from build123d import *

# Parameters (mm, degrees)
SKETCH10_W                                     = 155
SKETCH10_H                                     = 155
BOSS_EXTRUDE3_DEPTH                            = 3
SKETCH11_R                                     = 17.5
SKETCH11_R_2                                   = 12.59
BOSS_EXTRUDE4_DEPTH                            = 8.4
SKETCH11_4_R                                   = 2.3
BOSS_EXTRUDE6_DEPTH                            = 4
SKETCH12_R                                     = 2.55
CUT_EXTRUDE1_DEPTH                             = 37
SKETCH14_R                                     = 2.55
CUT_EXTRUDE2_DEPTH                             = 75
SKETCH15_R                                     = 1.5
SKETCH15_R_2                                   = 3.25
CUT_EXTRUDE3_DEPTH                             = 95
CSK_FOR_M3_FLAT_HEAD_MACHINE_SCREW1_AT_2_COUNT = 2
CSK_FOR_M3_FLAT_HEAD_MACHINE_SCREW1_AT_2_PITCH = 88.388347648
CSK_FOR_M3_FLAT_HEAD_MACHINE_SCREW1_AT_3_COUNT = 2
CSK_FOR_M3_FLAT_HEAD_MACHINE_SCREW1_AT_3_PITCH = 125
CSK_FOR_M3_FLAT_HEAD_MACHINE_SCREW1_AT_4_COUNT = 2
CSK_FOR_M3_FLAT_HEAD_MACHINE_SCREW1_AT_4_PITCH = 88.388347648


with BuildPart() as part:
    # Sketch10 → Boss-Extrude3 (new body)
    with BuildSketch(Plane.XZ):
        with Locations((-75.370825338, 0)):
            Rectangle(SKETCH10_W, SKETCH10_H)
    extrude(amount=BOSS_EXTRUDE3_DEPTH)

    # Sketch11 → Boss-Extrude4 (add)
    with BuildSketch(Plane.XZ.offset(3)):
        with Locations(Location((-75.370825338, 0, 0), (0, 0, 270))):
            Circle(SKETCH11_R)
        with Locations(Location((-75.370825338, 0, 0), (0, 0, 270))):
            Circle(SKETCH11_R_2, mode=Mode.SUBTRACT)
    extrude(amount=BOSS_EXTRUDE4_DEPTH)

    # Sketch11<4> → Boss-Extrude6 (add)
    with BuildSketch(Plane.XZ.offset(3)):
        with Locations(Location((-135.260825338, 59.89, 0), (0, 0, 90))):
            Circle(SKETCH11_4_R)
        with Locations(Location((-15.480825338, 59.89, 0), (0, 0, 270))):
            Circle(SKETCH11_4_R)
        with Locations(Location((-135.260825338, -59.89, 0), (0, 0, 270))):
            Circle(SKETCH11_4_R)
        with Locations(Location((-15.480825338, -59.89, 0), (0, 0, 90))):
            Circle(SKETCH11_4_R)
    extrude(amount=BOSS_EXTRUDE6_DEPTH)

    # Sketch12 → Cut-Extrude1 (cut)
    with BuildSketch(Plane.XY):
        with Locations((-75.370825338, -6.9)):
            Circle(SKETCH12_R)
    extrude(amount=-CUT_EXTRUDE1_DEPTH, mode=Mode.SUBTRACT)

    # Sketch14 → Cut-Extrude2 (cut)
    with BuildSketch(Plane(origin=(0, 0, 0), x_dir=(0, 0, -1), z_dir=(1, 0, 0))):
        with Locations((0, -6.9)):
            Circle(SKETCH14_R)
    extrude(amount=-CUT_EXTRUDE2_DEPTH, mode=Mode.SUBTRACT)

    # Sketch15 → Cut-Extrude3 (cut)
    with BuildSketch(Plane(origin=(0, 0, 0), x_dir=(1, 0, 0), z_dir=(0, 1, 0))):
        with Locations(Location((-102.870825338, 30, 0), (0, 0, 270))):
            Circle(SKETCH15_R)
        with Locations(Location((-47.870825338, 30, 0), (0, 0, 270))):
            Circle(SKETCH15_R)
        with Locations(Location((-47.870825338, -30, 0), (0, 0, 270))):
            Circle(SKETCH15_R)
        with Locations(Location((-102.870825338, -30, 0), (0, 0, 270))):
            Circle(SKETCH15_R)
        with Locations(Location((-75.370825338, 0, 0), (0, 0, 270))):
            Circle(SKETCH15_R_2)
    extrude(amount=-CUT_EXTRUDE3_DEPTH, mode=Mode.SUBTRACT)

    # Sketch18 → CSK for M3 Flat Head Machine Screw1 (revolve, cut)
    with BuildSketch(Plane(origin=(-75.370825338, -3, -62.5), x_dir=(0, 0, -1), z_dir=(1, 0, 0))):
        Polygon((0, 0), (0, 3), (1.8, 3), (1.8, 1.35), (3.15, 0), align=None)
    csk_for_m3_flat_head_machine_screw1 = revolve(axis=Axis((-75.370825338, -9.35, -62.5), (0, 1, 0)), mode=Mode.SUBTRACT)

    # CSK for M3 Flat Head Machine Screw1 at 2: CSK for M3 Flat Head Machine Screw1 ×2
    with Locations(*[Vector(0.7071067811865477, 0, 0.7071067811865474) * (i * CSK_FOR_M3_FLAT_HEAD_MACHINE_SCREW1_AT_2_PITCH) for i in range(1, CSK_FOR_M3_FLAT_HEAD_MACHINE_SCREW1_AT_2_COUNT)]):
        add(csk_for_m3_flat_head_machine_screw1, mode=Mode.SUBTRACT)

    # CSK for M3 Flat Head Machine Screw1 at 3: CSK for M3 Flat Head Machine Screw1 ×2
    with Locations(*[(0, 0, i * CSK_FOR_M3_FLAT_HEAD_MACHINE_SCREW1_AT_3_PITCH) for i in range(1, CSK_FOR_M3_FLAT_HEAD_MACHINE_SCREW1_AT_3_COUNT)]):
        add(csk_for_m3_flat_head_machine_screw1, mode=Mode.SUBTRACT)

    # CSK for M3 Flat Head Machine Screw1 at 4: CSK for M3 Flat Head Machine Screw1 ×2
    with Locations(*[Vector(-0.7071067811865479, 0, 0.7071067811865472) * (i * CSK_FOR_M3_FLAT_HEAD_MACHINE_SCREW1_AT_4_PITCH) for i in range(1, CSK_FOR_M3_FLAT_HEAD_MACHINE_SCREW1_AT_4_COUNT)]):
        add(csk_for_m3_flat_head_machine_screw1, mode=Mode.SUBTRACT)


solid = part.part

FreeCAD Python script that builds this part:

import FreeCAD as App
import Part
import Sketcher
Q = App.Units.Quantity


def add_polygon(sketch, points):
    """Adds a closed chain of lines whose ends are joined by coincident constraints."""
    first, n = sketch.GeometryCount, len(points)
    for a, b in zip(points, points[1:] + points[:1]):
        sketch.addGeometry(Part.LineSegment(App.Vector(*a, 0), App.Vector(*b, 0)), False)
    for i in range(n):
        sketch.addConstraint(Sketcher.Constraint("Coincident", first + i, 2, first + (i + 1) % n, 1))

doc = App.newDocument("Part")
body = doc.addObject("PartDesign::Body", "Body")

# Sketch on XZ plane
sketch1 = body.newObject("Sketcher::SketchObject", "Sketch")
sketch1.AttachmentSupport = (doc.getObject("XZ_Plane"), [""])
sketch1.MapMode = "FlatFace"
add_polygon(sketch1, [(-153, 78), (-153, -78), (2, -78), (2, 78)])  # lines 0-3
sketch1.addConstraint([
    Sketcher.Constraint("Vertical", 0),
    Sketcher.Constraint("Horizontal", 1),
    Sketcher.Constraint("Vertical", 2),
    Sketcher.Constraint("Horizontal", 3),
    Sketcher.Constraint("Equal", 3, 0),
    Sketcher.Constraint("DistanceX", 1, 1, 1, 2, Q("155 mm")),
    Sketcher.Constraint("DistanceY", 0, 2, -1, 1, Q("77.5 mm")),
    Sketcher.Constraint("DistanceX", 0, 2, -1, 1, Q("152.870825 mm")),
])
pad1 = body.newObject("PartDesign::Pad", "Pad")
pad1.Profile = sketch1
pad1.Length = 3

# Sketch on XZ plane
sketch2 = body.newObject("Sketcher::SketchObject", "Sketch001")
sketch2.AttachmentSupport = (doc.getObject("XZ_Plane"), [""])
sketch2.MapMode = "FlatFace"
sketch2.AttachmentOffset = App.Placement(App.Vector(0, 0, 3), App.Rotation())
sketch2.addGeometry([
    Part.Circle(App.Vector(-75, 0, 0), App.Vector(0, 0, 1), 18),
    Part.Circle(App.Vector(-75, 0, 0), App.Vector(0, 0, 1), 13),
], False)
sketch2.addConstraint([
    Sketcher.Constraint("Coincident", 1, 3, 0, 3),
    Sketcher.Constraint("PointOnObject", 0, 3, -1),
    Sketcher.Constraint("Diameter", 0, Q("35 mm")),
    Sketcher.Constraint("Diameter", 1, Q("25.18 mm")),
    Sketcher.Constraint("DistanceX", 0, 3, -1, 1, Q("75.370825 mm")),
])
pad2 = body.newObject("PartDesign::Pad", "Pad001")
pad2.Profile = sketch2
pad2.Length = 8.4

# Sketch on XZ plane
sketch3 = body.newObject("Sketcher::SketchObject", "Sketch002")
sketch3.AttachmentSupport = (doc.getObject("XZ_Plane"), [""])
sketch3.MapMode = "FlatFace"
sketch3.AttachmentOffset = App.Placement(App.Vector(0, 0, 3), App.Rotation())
sketch3.addGeometry([
    Part.Circle(App.Vector(-135.3, 59.9, 0), App.Vector(0, 0, 1), 2.3),
    Part.Circle(App.Vector(-15.5, 59.9, 0), App.Vector(0, 0, 1), 2.3),
    Part.Circle(App.Vector(-135.3, -59.9, 0), App.Vector(0, 0, 1), 2.3),
    Part.Circle(App.Vector(-15.5, -59.9, 0), App.Vector(0, 0, 1), 2.3),
], False)
sketch3.addConstraint([
    Sketcher.Constraint("Equal", 0, 1),
    Sketcher.Constraint("Equal", 1, 2),
    Sketcher.Constraint("Equal", 2, 3),
    Sketcher.Constraint("Symmetric", 0, 3, 2, 3, -1),
    Sketcher.Constraint("Symmetric", 1, 3, 3, 3, -1),
    Sketcher.Constraint("Horizontal", 0, 3, 1, 3),
    Sketcher.Constraint("Diameter", 0, Q("4.6 mm")),
    Sketcher.Constraint("DistanceY", -1, 1, 0, 3, Q("59.89 mm")),
    Sketcher.Constraint("DistanceX", 0, 3, 1, 3, Q("119.78 mm")),
    Sketcher.Constraint("DistanceX", 0, 3, -1, 1, Q("135.260825 mm")),
])
pad3 = body.newObject("PartDesign::Pad", "Pad002")
pad3.Profile = sketch3
pad3.Length = 4

# Sketch on XY plane
sketch4 = body.newObject("Sketcher::SketchObject", "Sketch003")
sketch4.AttachmentSupport = (doc.getObject("XY_Plane"), [""])
sketch4.MapMode = "FlatFace"
sketch4.addGeometry(Part.Circle(App.Vector(-75.4, -6.9, 0), App.Vector(0, 0, 1), 2.5), False)
sketch4.addConstraint([
    Sketcher.Constraint("Diameter", 0, Q("5.1 mm")),
    Sketcher.Constraint("DistanceY", 0, 3, -1, 1, Q("6.9 mm")),
    Sketcher.Constraint("DistanceX", 0, 3, -1, 1, Q("75.370825 mm")),
])
pocket1 = body.newObject("PartDesign::Pocket", "Pocket")
pocket1.Profile = sketch4
pocket1.Length = 37

# Sketch on YZ plane
sketch5 = body.newObject("Sketcher::SketchObject", "Sketch004")
sketch5.AttachmentSupport = (doc.getObject("YZ_Plane"), [""])
sketch5.MapMode = "FlatFace"
sketch5.addGeometry(Part.Circle(App.Vector(-6.9, 0, 0), App.Vector(0, 0, 1), 2.5), False)
sketch5.addConstraint([
    Sketcher.Constraint("PointOnObject", 0, 3, -1),
    Sketcher.Constraint("Diameter", 0, Q("5.1 mm")),
    Sketcher.Constraint("DistanceX", 0, 3, -1, 1, Q("6.9 mm")),
])
pocket2 = body.newObject("PartDesign::Pocket", "Pocket001")
pocket2.Profile = sketch5
pocket2.Length = 75

# Sketch on XZ plane
sketch6 = body.newObject("Sketcher::SketchObject", "Sketch005")
sketch6.AttachmentSupport = (doc.getObject("XZ_Plane"), [""])
sketch6.MapMode = "FlatFace"
sketch6.addGeometry([
    Part.Circle(App.Vector(-102.9, -30, 0), App.Vector(0, 0, 1), 1.5),  # 0
    Part.Circle(App.Vector(-47.9, -30, 0), App.Vector(0, 0, 1), 1.5),  # 1
    Part.Circle(App.Vector(-47.9, 30, 0), App.Vector(0, 0, 1), 1.5),  # 2
    Part.Circle(App.Vector(-102.9, 30, 0), App.Vector(0, 0, 1), 1.5),  # 3
    Part.Circle(App.Vector(-75.4, 0, 0), App.Vector(0, 0, 1), 3.2),  # 4
], False)
sketch6.addConstraint([
    Sketcher.Constraint("Equal", 0, 1),
    Sketcher.Constraint("Equal", 1, 2),
    Sketcher.Constraint("Equal", 2, 3),
    Sketcher.Constraint("Symmetric", 1, 3, 2, 3, -1),
    Sketcher.Constraint("Symmetric", 0, 3, 3, 3, -1),
    Sketcher.Constraint("PointOnObject", 4, 3, -1),
    Sketcher.Constraint("Horizontal", 0, 3, 1, 3),
    Sketcher.Constraint("Diameter", 0, Q("3 mm")),
    Sketcher.Constraint("Diameter", 4, Q("6.5 mm")),
    Sketcher.Constraint("DistanceY", 0, 3, -1, 1, Q("30 mm")),
    Sketcher.Constraint("DistanceX", 0, 3, 1, 3, Q("55 mm")),
    Sketcher.Constraint("DistanceX", 0, 3, 4, 3, Q("27.5 mm")),
    Sketcher.Constraint("DistanceX", 0, 3, -1, 1, Q("102.870825 mm")),
])
pocket3 = body.newObject("PartDesign::Pocket", "Pocket002")
pocket3.Profile = sketch6
pocket3.Length = 95
pocket3.Reversed = True

# Sketch on YZ plane
sketch7 = body.newObject("Sketcher::SketchObject", "Sketch006")
sketch7.AttachmentSupport = (doc.getObject("YZ_Plane"), [""])
sketch7.MapMode = "FlatFace"
sketch7.AttachmentOffset = App.Placement(App.Vector(0, 0, -75.370825), App.Rotation())
add_polygon(sketch7, [(0, -62.5), (-3, -62.5), (-3, -65.7), (-1.6, -64.3), (0, -64.3)])  # lines 0-4
sketch7.addGeometry(Part.LineSegment(App.Vector(-3, -62.5, 0), App.Vector(0, -62.5, 0)), True)  # axis
sketch7.addConstraint([
    Sketcher.Constraint("Horizontal", 0),
    Sketcher.Constraint("Vertical", 1),
    Sketcher.Constraint("Horizontal", 3),
    Sketcher.Constraint("Vertical", 4),
    Sketcher.Constraint("Horizontal", 5),
    Sketcher.Constraint("Coincident", 5, 1, 0, 2),
    Sketcher.Constraint("PointOnObject", 3, 2, -2),
    Sketcher.Constraint("PointOnObject", 5, 2, -2),
    Sketcher.Constraint("DistanceX", 0, 2, 0, 1, Q("3 mm")),
    Sketcher.Constraint("Angle", 2, Q("45 deg")),
    Sketcher.Constraint("DistanceY", 4, 1, 4, 2, Q("1.8 mm")),
    Sketcher.Constraint("DistanceX", 3, 1, 3, 2, Q("1.65 mm")),
    Sketcher.Constraint("DistanceY", 0, 2, -1, 1, Q("62.5 mm")),
])
groove = body.newObject("PartDesign::Groove", "Groove")
groove.Profile = sketch7
groove.ReferenceAxis = (sketch7, ["Axis0"])
groove.Angle = 360
doc.recompute()

datumline = body.newObject("PartDesign::Line", "DatumLine")
datumline.Placement = App.Placement(App.Vector(0, 0, 0), App.Rotation(App.Vector(0, 0, 1), App.Vector(0.707106781, 0, 0.707106781)))
linearpattern = body.newObject("PartDesign::LinearPattern", "LinearPattern")
linearpattern.Originals = [groove]
linearpattern.Direction = (datumline, [""])
linearpattern.Mode = "offset"
linearpattern.Offset = 88.388348
linearpattern.Occurrences = 2
body.Tip = linearpattern
doc.recompute()

linearpattern2 = body.newObject("PartDesign::LinearPattern", "LinearPattern001")
linearpattern2.Originals = [groove]
linearpattern2.Direction = (doc.getObject("Z_Axis"), [""])
linearpattern2.Mode = "offset"
linearpattern2.Offset = 125
linearpattern2.Occurrences = 2
body.Tip = linearpattern2
doc.recompute()

datumline2 = body.newObject("PartDesign::Line", "DatumLine001")
datumline2.Placement = App.Placement(App.Vector(0, 0, 0), App.Rotation(App.Vector(0, 0, 1), App.Vector(-0.707106781, 0, 0.707106781)))
linearpattern3 = body.newObject("PartDesign::LinearPattern", "LinearPattern002")
linearpattern3.Originals = [groove]
linearpattern3.Direction = (datumline2, [""])
linearpattern3.Mode = "offset"
linearpattern3.Offset = 88.388348
linearpattern3.Occurrences = 2
body.Tip = linearpattern3

doc.recompute()
